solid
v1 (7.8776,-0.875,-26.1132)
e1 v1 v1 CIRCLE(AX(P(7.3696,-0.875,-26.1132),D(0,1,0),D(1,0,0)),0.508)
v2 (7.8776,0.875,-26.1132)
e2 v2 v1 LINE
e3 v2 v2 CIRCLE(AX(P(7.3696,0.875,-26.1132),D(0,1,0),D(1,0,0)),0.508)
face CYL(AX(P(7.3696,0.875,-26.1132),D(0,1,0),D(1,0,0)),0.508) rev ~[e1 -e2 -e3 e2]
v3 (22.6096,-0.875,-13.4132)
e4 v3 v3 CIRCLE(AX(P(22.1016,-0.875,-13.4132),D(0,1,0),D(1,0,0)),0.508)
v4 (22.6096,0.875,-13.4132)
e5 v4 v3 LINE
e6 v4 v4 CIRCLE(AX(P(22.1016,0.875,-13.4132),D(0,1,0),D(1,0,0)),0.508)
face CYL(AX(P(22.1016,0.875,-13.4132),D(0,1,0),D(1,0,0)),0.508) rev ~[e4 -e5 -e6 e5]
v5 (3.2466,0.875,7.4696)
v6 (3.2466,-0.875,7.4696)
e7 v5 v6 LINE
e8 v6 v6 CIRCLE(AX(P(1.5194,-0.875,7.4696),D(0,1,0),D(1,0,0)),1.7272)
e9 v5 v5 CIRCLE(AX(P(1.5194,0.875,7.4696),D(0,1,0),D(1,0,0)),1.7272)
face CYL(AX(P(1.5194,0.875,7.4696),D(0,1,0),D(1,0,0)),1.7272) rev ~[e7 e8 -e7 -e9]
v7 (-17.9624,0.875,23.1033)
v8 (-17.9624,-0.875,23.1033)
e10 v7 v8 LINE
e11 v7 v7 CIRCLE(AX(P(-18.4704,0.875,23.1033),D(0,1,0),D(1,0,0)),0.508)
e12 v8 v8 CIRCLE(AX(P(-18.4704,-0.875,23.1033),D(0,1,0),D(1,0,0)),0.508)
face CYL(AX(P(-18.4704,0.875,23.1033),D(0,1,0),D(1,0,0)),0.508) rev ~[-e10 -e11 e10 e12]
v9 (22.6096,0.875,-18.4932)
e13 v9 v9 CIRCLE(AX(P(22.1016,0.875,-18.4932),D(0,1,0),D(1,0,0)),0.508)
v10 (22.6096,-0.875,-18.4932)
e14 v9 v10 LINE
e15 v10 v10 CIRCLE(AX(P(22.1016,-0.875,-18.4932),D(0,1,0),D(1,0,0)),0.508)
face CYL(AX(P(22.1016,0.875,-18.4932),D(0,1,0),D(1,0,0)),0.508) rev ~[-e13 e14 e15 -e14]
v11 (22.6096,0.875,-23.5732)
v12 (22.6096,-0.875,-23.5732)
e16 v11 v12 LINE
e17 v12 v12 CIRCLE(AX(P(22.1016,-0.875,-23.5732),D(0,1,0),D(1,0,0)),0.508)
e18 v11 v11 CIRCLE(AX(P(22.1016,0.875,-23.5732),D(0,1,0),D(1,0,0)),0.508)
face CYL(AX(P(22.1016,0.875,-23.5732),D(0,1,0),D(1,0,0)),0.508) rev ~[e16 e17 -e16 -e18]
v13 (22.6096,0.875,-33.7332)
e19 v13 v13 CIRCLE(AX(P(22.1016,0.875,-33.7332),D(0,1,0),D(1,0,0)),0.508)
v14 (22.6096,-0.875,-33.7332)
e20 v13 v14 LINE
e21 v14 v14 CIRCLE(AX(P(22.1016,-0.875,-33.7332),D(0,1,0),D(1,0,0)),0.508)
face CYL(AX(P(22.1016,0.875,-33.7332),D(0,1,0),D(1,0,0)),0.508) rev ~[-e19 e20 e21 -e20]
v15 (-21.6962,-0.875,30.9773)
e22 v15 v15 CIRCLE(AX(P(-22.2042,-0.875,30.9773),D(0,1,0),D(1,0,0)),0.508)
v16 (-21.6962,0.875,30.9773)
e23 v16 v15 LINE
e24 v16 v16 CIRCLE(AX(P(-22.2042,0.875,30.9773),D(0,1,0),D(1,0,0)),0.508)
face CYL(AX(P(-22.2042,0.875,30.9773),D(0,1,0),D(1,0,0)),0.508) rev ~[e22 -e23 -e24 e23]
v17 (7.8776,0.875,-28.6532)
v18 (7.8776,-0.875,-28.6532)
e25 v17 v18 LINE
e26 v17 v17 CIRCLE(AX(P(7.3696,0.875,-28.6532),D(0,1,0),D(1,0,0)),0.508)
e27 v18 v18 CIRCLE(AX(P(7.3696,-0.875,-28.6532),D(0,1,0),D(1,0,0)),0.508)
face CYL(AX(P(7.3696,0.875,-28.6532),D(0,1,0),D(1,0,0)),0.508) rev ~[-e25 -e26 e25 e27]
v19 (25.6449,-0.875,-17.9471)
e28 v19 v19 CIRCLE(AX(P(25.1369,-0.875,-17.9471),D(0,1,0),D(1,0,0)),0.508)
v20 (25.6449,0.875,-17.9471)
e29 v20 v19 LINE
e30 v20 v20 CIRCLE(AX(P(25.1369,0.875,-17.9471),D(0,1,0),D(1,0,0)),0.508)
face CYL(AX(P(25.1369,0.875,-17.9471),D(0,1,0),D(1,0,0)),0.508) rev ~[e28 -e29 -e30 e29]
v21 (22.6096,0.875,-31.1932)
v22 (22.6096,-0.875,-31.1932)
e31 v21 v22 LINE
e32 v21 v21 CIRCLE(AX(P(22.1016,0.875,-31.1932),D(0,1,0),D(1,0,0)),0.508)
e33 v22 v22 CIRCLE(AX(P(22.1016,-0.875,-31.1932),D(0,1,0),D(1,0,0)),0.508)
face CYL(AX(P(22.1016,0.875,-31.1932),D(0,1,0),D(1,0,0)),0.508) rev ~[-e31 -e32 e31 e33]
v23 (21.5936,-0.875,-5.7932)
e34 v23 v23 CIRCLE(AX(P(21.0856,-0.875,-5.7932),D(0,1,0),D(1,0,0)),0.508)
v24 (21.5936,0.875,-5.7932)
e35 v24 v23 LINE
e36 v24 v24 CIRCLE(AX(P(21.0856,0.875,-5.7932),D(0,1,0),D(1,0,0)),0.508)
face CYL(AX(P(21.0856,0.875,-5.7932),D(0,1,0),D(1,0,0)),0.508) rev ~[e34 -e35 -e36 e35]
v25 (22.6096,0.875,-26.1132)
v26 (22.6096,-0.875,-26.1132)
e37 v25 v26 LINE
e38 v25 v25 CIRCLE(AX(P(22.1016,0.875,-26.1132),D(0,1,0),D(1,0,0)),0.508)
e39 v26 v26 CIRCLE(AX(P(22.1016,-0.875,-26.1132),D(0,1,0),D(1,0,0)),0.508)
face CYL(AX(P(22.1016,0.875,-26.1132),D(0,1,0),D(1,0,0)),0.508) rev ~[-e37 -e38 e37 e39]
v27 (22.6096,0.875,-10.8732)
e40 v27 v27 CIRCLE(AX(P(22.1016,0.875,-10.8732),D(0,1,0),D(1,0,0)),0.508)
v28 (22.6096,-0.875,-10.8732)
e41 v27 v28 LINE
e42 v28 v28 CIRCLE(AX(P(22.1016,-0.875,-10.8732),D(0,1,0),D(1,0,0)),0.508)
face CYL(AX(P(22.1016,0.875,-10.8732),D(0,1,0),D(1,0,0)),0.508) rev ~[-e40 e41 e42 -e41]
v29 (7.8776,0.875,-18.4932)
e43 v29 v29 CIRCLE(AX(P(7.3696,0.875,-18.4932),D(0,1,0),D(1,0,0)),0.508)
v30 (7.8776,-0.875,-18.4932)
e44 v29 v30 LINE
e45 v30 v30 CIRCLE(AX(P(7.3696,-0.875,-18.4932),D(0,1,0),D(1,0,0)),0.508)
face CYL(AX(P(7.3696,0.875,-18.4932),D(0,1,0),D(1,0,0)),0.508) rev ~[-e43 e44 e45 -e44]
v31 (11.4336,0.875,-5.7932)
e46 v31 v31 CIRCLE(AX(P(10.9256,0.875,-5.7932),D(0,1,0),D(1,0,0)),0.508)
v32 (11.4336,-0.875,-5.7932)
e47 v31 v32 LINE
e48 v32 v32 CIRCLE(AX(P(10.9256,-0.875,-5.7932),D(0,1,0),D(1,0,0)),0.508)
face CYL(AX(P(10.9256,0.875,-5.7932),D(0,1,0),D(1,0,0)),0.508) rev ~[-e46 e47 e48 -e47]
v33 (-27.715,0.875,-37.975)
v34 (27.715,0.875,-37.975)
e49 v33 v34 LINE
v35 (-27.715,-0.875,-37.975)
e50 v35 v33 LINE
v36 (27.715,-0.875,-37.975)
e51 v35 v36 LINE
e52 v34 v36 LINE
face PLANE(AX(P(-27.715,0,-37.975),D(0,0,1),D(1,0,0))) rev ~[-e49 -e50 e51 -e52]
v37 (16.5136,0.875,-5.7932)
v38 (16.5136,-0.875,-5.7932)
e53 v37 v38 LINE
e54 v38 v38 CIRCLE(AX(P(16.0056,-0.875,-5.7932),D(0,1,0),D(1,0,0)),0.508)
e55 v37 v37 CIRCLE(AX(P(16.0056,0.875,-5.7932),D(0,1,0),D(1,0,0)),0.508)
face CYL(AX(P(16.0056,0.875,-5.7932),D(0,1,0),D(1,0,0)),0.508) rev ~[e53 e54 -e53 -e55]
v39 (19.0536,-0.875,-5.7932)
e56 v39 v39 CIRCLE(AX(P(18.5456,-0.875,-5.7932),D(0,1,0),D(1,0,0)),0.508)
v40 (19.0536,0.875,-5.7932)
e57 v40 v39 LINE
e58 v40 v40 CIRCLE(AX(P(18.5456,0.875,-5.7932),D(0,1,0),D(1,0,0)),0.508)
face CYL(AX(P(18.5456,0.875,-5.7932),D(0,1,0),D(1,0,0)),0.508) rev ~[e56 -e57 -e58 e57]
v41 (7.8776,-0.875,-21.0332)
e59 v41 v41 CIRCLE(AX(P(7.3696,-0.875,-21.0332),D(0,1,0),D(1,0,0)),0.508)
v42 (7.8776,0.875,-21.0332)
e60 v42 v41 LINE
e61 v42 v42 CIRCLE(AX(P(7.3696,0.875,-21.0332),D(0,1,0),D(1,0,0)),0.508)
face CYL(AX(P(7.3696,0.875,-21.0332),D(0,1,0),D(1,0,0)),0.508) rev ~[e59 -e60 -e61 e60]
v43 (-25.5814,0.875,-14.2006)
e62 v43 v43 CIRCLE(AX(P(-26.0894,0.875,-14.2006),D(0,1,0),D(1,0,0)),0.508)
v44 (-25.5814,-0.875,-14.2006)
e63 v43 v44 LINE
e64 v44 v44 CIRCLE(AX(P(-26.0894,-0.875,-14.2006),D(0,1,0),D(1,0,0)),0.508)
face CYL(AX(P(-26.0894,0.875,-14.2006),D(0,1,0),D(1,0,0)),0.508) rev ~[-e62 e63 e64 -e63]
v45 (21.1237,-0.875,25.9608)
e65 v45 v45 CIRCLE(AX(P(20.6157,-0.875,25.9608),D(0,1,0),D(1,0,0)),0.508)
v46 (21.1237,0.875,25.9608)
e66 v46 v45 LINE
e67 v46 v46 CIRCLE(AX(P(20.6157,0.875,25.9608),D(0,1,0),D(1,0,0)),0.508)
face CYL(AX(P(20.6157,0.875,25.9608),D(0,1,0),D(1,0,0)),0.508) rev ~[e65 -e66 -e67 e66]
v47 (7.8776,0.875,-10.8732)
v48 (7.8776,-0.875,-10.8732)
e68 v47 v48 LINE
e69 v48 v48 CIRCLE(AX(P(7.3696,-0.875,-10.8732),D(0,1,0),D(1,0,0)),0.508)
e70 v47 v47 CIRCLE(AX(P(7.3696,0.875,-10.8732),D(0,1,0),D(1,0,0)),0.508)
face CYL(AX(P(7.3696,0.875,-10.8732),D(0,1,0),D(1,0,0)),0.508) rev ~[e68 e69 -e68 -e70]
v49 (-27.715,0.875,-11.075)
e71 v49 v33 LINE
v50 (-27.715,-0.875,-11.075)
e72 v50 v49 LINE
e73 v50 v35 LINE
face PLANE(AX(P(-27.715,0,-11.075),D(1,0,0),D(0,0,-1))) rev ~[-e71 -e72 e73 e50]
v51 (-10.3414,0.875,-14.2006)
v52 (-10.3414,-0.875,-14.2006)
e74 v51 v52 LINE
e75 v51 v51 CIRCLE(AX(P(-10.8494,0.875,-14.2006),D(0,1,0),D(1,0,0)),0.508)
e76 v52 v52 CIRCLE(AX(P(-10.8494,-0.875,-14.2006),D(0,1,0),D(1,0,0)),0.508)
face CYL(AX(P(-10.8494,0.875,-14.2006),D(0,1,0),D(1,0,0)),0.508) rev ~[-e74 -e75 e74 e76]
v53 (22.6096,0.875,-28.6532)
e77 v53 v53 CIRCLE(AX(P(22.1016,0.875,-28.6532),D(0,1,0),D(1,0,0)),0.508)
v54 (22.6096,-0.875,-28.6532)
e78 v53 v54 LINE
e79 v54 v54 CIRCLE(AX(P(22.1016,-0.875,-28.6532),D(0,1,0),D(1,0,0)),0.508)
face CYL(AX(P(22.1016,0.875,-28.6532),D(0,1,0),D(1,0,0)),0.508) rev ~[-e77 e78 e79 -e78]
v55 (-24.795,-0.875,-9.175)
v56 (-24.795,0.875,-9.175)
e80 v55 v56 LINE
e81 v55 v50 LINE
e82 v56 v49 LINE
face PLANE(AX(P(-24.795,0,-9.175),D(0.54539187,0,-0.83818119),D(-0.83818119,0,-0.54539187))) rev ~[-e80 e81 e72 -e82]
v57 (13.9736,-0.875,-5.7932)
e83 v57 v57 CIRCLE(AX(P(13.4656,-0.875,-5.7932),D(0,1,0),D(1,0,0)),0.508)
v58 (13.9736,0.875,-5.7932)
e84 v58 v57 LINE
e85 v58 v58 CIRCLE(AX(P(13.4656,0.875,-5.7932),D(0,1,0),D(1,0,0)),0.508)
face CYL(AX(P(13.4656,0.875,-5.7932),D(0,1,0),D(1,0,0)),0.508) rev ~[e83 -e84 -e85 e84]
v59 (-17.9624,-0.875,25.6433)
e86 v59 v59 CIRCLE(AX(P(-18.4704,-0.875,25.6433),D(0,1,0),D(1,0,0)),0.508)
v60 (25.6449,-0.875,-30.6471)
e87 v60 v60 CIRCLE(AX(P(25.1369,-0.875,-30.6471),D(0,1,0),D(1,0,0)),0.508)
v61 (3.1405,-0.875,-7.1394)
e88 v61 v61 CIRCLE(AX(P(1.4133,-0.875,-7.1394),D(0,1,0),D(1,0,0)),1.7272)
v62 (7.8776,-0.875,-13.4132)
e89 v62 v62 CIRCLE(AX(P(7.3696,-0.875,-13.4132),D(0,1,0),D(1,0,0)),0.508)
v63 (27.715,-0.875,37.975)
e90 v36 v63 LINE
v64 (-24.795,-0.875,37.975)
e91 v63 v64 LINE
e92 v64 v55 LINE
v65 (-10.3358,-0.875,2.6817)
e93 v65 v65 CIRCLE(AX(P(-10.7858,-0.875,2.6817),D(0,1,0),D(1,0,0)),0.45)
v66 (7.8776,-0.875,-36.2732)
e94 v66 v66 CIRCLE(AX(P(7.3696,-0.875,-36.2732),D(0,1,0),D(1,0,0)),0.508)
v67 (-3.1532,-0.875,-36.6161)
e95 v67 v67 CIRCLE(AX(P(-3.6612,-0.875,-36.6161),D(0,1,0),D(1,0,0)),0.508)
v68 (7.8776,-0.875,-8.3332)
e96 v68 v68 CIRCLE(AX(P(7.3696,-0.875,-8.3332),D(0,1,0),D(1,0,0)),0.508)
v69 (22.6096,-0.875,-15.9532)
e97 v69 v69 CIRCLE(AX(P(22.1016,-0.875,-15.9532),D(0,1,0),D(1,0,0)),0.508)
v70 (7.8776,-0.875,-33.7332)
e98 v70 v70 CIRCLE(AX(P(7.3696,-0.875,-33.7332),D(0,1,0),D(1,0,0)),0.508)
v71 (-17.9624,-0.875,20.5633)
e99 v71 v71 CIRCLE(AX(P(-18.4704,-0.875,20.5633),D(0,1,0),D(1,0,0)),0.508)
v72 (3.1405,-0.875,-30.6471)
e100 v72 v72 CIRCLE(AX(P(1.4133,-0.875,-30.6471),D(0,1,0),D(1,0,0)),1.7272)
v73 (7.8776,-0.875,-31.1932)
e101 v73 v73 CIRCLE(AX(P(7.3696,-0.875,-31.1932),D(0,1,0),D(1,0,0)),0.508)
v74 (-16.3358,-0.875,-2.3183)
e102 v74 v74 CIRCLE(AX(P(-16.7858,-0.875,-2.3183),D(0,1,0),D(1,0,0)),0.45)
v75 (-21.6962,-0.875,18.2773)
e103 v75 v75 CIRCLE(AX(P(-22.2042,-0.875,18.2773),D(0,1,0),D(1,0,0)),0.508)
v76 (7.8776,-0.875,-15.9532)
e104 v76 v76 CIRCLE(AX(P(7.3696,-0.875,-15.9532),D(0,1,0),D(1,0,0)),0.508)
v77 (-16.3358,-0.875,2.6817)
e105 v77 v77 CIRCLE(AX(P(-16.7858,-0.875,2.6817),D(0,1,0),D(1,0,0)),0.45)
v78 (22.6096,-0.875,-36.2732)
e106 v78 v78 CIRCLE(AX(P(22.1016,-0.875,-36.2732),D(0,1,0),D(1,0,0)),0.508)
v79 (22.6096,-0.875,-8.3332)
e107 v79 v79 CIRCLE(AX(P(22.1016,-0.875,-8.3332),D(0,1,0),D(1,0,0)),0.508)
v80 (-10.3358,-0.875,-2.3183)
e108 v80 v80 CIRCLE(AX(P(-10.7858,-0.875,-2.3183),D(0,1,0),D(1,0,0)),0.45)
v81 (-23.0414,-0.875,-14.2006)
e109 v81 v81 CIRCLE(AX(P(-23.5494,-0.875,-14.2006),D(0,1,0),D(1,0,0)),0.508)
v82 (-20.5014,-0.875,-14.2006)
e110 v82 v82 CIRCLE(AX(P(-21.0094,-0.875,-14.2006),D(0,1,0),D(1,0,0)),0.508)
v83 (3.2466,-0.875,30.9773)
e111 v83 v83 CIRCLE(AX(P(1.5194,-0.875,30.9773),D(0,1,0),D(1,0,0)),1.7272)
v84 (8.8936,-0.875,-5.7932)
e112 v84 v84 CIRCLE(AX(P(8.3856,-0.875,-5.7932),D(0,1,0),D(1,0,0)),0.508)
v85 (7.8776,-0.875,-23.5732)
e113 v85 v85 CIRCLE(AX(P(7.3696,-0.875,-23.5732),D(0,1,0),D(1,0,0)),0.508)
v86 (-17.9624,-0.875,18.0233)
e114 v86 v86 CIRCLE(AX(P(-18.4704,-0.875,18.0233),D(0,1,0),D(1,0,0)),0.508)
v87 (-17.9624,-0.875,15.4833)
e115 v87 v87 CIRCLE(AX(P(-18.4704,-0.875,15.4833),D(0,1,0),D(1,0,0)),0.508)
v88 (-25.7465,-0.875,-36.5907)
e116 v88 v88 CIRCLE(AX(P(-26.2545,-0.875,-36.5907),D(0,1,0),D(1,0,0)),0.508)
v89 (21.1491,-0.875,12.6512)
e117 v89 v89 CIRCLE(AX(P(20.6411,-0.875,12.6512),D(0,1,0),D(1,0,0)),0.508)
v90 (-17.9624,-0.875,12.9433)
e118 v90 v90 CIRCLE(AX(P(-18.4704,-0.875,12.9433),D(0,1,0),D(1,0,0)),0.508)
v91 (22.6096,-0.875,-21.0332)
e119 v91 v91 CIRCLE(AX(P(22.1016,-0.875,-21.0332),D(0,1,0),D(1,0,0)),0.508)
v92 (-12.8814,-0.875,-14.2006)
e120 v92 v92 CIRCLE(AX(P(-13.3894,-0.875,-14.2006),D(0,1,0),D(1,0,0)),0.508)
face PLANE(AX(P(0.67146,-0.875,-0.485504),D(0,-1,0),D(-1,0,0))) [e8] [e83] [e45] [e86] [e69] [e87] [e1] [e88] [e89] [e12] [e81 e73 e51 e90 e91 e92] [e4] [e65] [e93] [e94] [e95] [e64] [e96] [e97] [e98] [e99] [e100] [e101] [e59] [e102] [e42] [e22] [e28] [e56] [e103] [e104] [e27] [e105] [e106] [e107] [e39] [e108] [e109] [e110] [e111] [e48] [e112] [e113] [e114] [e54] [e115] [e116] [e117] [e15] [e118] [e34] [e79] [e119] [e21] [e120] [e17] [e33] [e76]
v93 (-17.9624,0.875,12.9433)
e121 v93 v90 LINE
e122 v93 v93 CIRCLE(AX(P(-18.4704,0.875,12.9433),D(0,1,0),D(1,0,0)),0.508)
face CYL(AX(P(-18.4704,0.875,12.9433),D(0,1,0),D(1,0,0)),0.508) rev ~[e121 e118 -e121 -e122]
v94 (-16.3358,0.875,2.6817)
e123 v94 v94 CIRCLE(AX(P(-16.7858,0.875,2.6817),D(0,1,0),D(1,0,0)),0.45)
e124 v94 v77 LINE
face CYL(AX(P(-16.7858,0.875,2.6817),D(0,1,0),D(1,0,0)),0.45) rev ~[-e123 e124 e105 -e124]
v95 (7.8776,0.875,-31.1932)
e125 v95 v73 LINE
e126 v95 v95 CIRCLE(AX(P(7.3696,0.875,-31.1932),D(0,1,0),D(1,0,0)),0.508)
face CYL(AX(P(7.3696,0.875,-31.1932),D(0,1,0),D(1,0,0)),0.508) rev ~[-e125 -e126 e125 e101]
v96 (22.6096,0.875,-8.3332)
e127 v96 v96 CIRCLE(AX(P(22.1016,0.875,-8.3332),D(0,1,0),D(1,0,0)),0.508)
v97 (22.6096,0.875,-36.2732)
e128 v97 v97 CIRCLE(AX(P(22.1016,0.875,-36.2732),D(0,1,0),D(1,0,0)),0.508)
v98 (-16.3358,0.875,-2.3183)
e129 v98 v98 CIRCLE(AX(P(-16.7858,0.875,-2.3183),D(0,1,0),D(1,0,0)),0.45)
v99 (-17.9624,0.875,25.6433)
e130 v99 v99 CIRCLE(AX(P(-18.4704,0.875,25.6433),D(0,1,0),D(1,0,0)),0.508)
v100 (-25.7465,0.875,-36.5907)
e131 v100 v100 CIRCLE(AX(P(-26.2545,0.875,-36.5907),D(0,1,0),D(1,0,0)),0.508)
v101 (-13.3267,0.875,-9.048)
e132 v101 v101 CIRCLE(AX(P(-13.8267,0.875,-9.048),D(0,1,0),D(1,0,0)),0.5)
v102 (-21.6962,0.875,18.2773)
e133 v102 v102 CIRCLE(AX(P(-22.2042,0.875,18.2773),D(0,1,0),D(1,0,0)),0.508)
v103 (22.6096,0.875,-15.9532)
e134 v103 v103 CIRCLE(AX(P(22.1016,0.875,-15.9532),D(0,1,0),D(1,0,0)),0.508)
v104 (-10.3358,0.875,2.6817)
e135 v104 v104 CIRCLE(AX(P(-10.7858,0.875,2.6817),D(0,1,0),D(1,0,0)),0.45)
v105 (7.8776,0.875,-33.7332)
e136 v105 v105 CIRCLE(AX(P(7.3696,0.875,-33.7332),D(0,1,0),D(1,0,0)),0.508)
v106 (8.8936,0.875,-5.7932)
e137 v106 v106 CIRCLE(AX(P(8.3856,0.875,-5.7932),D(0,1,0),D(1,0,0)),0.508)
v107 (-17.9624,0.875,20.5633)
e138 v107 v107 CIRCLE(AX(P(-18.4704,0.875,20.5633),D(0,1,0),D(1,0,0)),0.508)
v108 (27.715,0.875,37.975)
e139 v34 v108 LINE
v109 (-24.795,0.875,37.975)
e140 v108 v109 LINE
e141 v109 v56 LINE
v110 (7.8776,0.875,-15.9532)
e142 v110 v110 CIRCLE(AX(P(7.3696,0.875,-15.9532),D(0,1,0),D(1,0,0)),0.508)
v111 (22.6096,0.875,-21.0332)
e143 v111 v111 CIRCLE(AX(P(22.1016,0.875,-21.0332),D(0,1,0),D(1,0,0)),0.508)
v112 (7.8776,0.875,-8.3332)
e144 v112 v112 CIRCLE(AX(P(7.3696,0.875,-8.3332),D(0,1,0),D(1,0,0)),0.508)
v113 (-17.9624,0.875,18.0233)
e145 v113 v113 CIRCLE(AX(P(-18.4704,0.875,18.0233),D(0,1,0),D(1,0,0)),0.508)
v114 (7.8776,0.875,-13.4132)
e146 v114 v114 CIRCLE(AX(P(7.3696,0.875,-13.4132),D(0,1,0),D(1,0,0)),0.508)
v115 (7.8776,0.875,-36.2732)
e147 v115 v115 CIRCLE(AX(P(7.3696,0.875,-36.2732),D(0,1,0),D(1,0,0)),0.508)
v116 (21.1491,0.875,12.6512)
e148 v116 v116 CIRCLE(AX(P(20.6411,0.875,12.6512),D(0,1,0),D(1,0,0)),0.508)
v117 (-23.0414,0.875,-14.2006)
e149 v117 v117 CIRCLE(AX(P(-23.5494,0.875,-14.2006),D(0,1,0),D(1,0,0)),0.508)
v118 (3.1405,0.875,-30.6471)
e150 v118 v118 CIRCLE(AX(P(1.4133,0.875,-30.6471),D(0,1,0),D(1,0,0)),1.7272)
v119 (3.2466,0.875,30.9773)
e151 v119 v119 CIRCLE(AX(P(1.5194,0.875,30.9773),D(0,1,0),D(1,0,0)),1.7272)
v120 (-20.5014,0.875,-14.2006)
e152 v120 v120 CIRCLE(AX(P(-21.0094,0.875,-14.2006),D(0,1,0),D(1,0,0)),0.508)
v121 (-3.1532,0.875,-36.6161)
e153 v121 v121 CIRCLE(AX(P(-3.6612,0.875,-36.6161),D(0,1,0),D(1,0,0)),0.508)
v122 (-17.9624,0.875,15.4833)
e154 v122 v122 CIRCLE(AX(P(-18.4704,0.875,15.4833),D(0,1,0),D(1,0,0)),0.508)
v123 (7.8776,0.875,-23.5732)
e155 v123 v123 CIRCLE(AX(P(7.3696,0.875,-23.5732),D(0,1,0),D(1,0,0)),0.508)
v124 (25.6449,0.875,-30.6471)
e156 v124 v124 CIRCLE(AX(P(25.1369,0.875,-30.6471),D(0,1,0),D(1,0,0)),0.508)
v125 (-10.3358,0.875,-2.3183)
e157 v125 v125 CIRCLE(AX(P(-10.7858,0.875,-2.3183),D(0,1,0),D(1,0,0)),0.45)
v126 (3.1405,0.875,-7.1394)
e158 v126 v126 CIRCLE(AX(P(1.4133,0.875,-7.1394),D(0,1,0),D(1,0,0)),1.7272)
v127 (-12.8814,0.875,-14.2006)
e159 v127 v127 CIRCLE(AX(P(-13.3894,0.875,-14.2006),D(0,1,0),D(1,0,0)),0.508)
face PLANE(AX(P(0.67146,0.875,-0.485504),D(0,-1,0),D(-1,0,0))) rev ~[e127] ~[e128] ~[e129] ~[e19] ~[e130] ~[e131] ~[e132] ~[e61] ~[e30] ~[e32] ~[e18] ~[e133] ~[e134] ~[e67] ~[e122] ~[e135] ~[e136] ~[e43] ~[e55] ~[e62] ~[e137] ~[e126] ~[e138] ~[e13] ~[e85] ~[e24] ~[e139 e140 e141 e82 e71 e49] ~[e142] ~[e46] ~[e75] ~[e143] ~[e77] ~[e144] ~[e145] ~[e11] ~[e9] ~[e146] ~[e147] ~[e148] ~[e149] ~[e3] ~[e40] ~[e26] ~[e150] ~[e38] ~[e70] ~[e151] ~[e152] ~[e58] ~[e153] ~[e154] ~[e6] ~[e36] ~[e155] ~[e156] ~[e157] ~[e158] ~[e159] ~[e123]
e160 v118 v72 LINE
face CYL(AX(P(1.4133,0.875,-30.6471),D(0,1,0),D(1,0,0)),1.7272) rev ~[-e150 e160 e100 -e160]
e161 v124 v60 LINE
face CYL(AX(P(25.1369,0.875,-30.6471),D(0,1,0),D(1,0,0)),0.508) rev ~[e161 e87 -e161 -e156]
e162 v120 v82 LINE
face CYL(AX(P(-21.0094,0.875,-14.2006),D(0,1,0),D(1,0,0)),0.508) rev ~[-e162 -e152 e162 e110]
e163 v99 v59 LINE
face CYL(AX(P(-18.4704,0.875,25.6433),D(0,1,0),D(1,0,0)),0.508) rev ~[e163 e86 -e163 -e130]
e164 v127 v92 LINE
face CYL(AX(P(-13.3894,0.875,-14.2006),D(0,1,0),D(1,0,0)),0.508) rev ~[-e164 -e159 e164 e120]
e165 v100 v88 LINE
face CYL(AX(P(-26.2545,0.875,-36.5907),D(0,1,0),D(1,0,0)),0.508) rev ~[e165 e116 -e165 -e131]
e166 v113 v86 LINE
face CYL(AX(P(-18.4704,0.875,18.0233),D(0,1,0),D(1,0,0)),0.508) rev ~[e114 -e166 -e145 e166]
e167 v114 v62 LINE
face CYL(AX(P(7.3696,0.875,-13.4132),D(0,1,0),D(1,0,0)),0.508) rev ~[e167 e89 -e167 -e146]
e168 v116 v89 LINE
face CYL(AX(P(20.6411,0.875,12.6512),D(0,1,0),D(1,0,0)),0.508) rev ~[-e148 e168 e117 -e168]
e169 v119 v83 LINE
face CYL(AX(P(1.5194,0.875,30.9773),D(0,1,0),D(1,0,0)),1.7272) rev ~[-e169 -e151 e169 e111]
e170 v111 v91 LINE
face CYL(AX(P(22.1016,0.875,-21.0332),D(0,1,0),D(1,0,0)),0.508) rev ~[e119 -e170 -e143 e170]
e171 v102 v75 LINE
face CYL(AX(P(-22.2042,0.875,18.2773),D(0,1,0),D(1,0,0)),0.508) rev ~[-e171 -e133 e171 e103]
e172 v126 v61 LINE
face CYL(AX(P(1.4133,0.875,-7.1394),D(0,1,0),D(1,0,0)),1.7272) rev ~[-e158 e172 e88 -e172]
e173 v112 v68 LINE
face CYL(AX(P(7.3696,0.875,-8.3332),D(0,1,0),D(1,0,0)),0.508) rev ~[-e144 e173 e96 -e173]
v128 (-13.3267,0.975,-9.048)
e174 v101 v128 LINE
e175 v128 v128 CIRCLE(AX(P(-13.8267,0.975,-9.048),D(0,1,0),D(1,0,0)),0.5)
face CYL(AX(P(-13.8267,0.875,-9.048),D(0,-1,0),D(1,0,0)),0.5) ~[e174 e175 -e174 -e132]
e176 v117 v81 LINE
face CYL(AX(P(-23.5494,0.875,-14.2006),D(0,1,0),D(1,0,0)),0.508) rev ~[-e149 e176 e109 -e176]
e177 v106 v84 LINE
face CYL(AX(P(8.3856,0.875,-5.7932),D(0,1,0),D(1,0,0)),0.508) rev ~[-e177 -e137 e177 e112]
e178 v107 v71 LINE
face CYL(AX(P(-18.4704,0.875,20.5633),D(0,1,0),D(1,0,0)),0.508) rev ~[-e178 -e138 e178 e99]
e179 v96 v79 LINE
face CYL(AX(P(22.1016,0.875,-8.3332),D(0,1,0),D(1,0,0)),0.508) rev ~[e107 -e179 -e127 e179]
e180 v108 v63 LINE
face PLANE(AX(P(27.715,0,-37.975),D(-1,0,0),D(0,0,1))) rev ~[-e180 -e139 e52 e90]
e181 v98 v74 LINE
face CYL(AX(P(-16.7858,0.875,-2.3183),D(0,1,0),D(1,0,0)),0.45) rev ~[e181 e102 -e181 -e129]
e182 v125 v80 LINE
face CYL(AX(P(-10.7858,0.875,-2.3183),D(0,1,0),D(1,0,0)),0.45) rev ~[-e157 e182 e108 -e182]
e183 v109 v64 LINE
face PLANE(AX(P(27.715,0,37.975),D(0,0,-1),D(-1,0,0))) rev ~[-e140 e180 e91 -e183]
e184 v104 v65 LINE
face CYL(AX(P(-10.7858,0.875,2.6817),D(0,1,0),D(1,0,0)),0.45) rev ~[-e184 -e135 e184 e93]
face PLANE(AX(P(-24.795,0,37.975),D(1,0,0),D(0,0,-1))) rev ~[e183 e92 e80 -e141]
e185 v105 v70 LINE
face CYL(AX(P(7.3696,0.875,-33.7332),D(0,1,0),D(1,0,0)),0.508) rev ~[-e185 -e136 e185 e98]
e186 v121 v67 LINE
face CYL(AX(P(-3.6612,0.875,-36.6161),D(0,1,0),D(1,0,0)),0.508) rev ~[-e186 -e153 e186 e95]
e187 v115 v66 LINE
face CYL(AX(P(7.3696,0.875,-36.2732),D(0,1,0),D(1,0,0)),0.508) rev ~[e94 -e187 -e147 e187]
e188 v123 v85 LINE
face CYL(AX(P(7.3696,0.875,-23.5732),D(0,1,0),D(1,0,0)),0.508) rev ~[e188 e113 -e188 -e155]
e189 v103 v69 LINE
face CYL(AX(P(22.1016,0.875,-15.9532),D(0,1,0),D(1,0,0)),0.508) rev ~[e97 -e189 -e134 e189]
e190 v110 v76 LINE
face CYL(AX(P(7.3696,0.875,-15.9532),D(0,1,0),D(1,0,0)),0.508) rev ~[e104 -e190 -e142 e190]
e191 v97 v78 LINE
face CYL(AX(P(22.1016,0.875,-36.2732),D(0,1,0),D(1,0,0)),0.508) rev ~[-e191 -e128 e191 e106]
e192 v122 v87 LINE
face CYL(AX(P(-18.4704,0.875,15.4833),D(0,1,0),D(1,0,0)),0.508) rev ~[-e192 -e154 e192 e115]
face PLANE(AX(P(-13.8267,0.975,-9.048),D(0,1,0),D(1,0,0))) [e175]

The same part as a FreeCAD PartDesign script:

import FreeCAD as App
import Part
import Sketcher
Q = App.Units.Quantity

doc = App.newDocument("Part")
params = doc.addObject("Spreadsheet::Sheet", "Params")
for row, (alias, value) in enumerate([
    ("sketch1_height", "26.9 mm"),
    ("sketch1_width", "55.43 mm"),
    ("sketch1_width2", "52.51 mm"),
    ("sketch1_height2", "47.15 mm"),
    ("sketch1_height3", "75.95 mm"),
    ("pad1_length", "1.75 mm"),
    ("sketch7_diameter", "0.9 mm"),
    ("sketch8_diameter", "1 mm"),
    ("pad2_length", "0.1 mm"),
], start=1):
    params.set(f"A{row}", alias)
    params.set(f"B{row}", "=" + value)
    params.setAlias(f"B{row}", alias)

body = doc.addObject("PartDesign::Body", "Body")

# Sketch on XZ plane
sketch1 = doc.addObject("Sketcher::SketchObject", "Sketch")
body.addObject(sketch1)
sketch1.AttachmentSupport = (doc.XZ_Plane, [""])
sketch1.MapMode = "FlatFace"
sketch1.addGeometry([
    Part.LineSegment(App.Vector(27.7, -38, 0), App.Vector(-27.7, -38, 0)),  # 0
    Part.LineSegment(App.Vector(-27.7, -38, 0), App.Vector(-27.7, -11.1, 0)),  # 1
    Part.LineSegment(App.Vector(-27.7, -11.1, 0), App.Vector(-24.8, -9.2, 0)),  # 2
    Part.LineSegment(App.Vector(-24.8, -9.2, 0), App.Vector(-24.8, 38, 0)),  # 3
    Part.LineSegment(App.Vector(-24.8, 38, 0), App.Vector(27.7, 38, 0)),  # 4
    Part.LineSegment(App.Vector(27.7, 38, 0), App.Vector(27.7, -38, 0)),  # 5
], False)
sketch1.addConstraint([
    Sketcher.Constraint("Coincident", 0, 2, 1, 1),
    Sketcher.Constraint("Coincident", 1, 2, 2, 1),
    Sketcher.Constraint("Coincident", 2, 2, 3, 1),
    Sketcher.Constraint("Coincident", 3, 2, 4, 1),
    Sketcher.Constraint("Coincident", 4, 2, 5, 1),
    Sketcher.Constraint("Coincident", 5, 2, 0, 1),
    Sketcher.Constraint("Horizontal", 0),
    Sketcher.Constraint("Vertical", 1),
    Sketcher.Constraint("Vertical", 3),
    Sketcher.Constraint("Horizontal", 4),
    Sketcher.Constraint("Vertical", 5),
    Sketcher.Constraint("Symmetric", 0, 2, 4, 2, -1, 1),
    Sketcher.Constraint("DistanceY", 1, 1, 1, 2, Q("26.9 mm")),
    Sketcher.Constraint("DistanceX", 0, 2, 0, 1, Q("55.43 mm")),
    Sketcher.Constraint("DistanceX", 4, 1, 4, 2, Q("52.51 mm")),
    Sketcher.Constraint("DistanceY", 3, 1, 3, 2, Q("47.15 mm")),
    Sketcher.Constraint("DistanceY", 5, 2, 5, 1, Q("75.95 mm")),
])
sketch1.setExpression("Constraints[12]", "Params.sketch1_height")
sketch1.setExpression("Constraints[13]", "Params.sketch1_width")
sketch1.setExpression("Constraints[14]", "Params.sketch1_width2")
sketch1.setExpression("Constraints[15]", "Params.sketch1_height2")
sketch1.setExpression("Constraints[16]", "Params.sketch1_height3")
pad1 = doc.addObject("PartDesign::Pad", "Pad")
body.addObject(pad1)
pad1.Profile = sketch1
pad1.setExpression("Length", "Params.pad1_length")
pad1.Midplane = True

# Sketch on XZ plane
sketch2 = doc.addObject("Sketcher::SketchObject", "Sketch001")
body.addObject(sketch2)
sketch2.AttachmentSupport = (doc.XZ_Plane, [""])
sketch2.MapMode = "FlatFace"
sketch2.AttachmentOffset = App.Placement(App.Vector(0, 0, -0.875), App.Rotation())
sketch2.addGeometry([
    Part.Circle(App.Vector(1.5, 31, 0), App.Vector(0, 0, 1), 1.7),  # 0
    Part.Circle(App.Vector(1.5, 7.5, 0), App.Vector(0, 0, 1), 1.7),  # 1
    Part.Circle(App.Vector(1.4, -7.1, 0), App.Vector(0, 0, 1), 1.7),  # 2
    Part.Circle(App.Vector(1.4, -30.6, 0), App.Vector(0, 0, 1), 1.7),  # 3
    Part.Circle(App.Vector(-22.2, 31, 0), App.Vector(0, 0, 1), 0.5),  # 4
    Part.Circle(App.Vector(-22.2, 18.3, 0), App.Vector(0, 0, 1), 0.5),  # 5
    Part.Circle(App.Vector(25.1, -17.9, 0), App.Vector(0, 0, 1), 0.5),  # 6
    Part.Circle(App.Vector(25.1, -30.6, 0), App.Vector(0, 0, 1), 0.5),  # 7
], False)
sketch2.addConstraint([
    Sketcher.Constraint("Equal", 0, 1),
    Sketcher.Constraint("Equal", 1, 2),
    Sketcher.Constraint("Equal", 2, 3),
    Sketcher.Constraint("Equal", 4, 5),
    Sketcher.Constraint("Equal", 5, 6),
    Sketcher.Constraint("Equal", 6, 7),
    Sketcher.Constraint("Horizontal", 0, 3, 4, 3),
    Sketcher.Constraint("Horizontal", 3, 3, 7, 3),
    Sketcher.Constraint("Vertical", 0, 3, 1, 3),
    Sketcher.Constraint("Vertical", 2, 3, 3, 3),
    Sketcher.Constraint("Vertical", 4, 3, 5, 3),
    Sketcher.Constraint("Vertical", 6, 3, 7, 3),
    Sketcher.Constraint("Diameter", 4, Q("1.016 mm")),
    Sketcher.Constraint("Diameter", 0, Q("3.4544 mm")),
    Sketcher.Constraint("DistanceY", 5, 3, 4, 3, Q("12.7 mm")),
    Sketcher.Constraint("DistanceY", 3, 3, 6, 3, Q("12.7 mm")),
    Sketcher.Constraint("DistanceY", 2, 3, 1, 3, Q("14.609 mm")),
    Sketcher.Constraint("DistanceX", -1, 1, 0, 3, Q("1.5194 mm")),
    Sketcher.Constraint("DistanceY", -1, 1, 0, 3, Q("30.9773 mm")),
    Sketcher.Constraint("DistanceY", -1, 1, 1, 3, Q("7.4696 mm")),
    Sketcher.Constraint("DistanceX", -1, 1, 2, 3, Q("1.4133 mm")),
    Sketcher.Constraint("DistanceY", 3, 3, -1, 1, Q("30.6471 mm")),
    Sketcher.Constraint("DistanceX", 4, 3, -1, 1, Q("22.2042 mm")),
    Sketcher.Constraint("DistanceX", -1, 1, 6, 3, Q("25.1369 mm")),
])
pocket1 = doc.addObject("PartDesign::Pocket", "Pocket")
body.addObject(pocket1)
pocket1.Profile = sketch2
pocket1.Type = "ThroughAll"
pocket1.Reversed = True

# Sketch on XZ plane
sketch3 = doc.addObject("Sketcher::SketchObject", "Sketch002")
body.addObject(sketch3)
sketch3.AttachmentSupport = (doc.XZ_Plane, [""])
sketch3.MapMode = "FlatFace"
sketch3.AttachmentOffset = App.Placement(App.Vector(0, 0, -0.875), App.Rotation())
sketch3.addGeometry([
    Part.Circle(App.Vector(-18.5, 12.9, 0), App.Vector(0, 0, 1), 0.5),  # 0
    Part.Circle(App.Vector(-18.5, 15.5, 0), App.Vector(0, 0, 1), 0.5),  # 1
    Part.Circle(App.Vector(-18.5, 18, 0), App.Vector(0, 0, 1), 0.5),  # 2
    Part.Circle(App.Vector(-18.5, 20.6, 0), App.Vector(0, 0, 1), 0.5),  # 3
    Part.Circle(App.Vector(-18.5, 23.1, 0), App.Vector(0, 0, 1), 0.5),  # 4
    Part.Circle(App.Vector(-18.5, 25.6, 0), App.Vector(0, 0, 1), 0.5),  # 5
], False)
sketch3.addConstraint([
    Sketcher.Constraint("Equal", 0, 1),
    Sketcher.Constraint("Equal", 1, 2),
    Sketcher.Constraint("Equal", 2, 3),
    Sketcher.Constraint("Equal", 3, 4),
    Sketcher.Constraint("Equal", 4, 5),
    Sketcher.Constraint("Vertical", 0, 3, 1, 3),
    Sketcher.Constraint("Vertical", 1, 3, 2, 3),
    Sketcher.Constraint("Vertical", 2, 3, 3, 3),
    Sketcher.Constraint("Vertical", 3, 3, 4, 3),
    Sketcher.Constraint("Vertical", 4, 3, 5, 3),
    Sketcher.Constraint("Diameter", 0, Q("1.016 mm")),
    Sketcher.Constraint("DistanceY", 0, 3, 5, 3, Q("12.7 mm")),
    Sketcher.Constraint("DistanceY", 0, 3, 1, 3, Q("2.54 mm")),
    Sketcher.Constraint("DistanceY", 1, 3, 2, 3, Q("2.54 mm")),
    Sketcher.Constraint("DistanceY", 2, 3, 3, 3, Q("2.54 mm")),
    Sketcher.Constraint("DistanceY", 3, 3, 4, 3, Q("2.54 mm")),
    Sketcher.Constraint("DistanceX", 0, 3, -1, 1, Q("18.4704 mm")),
    Sketcher.Constraint("DistanceY", -1, 1, 0, 3, Q("12.9433 mm")),
])
pocket2 = doc.addObject("PartDesign::Pocket", "Pocket001")
body.addObject(pocket2)
pocket2.Profile = sketch3
pocket2.Type = "ThroughAll"
pocket2.Reversed = True

# Sketch on XZ plane
sketch4 = doc.addObject("Sketcher::SketchObject", "Sketch003")
body.addObject(sketch4)
sketch4.AttachmentSupport = (doc.XZ_Plane, [""])
sketch4.MapMode = "FlatFace"
sketch4.AttachmentOffset = App.Placement(App.Vector(0, 0, -0.875), App.Rotation())
sketch4.addGeometry([
    Part.Circle(App.Vector(-26.1, -14.2, 0), App.Vector(0, 0, 1), 0.5),  # 0
    Part.Circle(App.Vector(-23.5, -14.2, 0), App.Vector(0, 0, 1), 0.5),  # 1
    Part.Circle(App.Vector(-21, -14.2, 0), App.Vector(0, 0, 1), 0.5),  # 2
    Part.Circle(App.Vector(-13.4, -14.2, 0), App.Vector(0, 0, 1), 0.5),  # 3
    Part.Circle(App.Vector(-10.8, -14.2, 0), App.Vector(0, 0, 1), 0.5),  # 4
], False)
sketch4.addConstraint([
    Sketcher.Constraint("Equal", 0, 1),
    Sketcher.Constraint("Equal", 1, 2),
    Sketcher.Constraint("Equal", 2, 3),
    Sketcher.Constraint("Equal", 3, 4),
    Sketcher.Constraint("Horizontal", 0, 3, 1, 3),
    Sketcher.Constraint("Horizontal", 1, 3, 2, 3),
    Sketcher.Constraint("Horizontal", 2, 3, 3, 3),
    Sketcher.Constraint("Horizontal", 3, 3, 4, 3),
    Sketcher.Constraint("Diameter", 0, Q("1.016 mm")),
    Sketcher.Constraint("DistanceX", 0, 3, 3, 3, Q("12.7 mm")),
    Sketcher.Constraint("DistanceX", 1, 3, 4, 3, Q("12.7 mm")),
    Sketcher.Constraint("DistanceX", 0, 3, 1, 3, Q("2.54 mm")),
    Sketcher.Constraint("DistanceX", 1, 3, 2, 3, Q("2.54 mm")),
    Sketcher.Constraint("DistanceX", 0, 3, -1, 1, Q("26.0894 mm")),
    Sketcher.Constraint("DistanceY", 0, 3, -1, 1, Q("14.2006 mm")),
])
pocket3 = doc.addObject("PartDesign::Pocket", "Pocket002")
body.addObject(pocket3)
pocket3.Profile = sketch4
pocket3.Type = "ThroughAll"
pocket3.Reversed = True

# Sketch on XZ plane
sketch5 = doc.addObject("Sketcher::SketchObject", "Sketch004")
body.addObject(sketch5)
sketch5.AttachmentSupport = (doc.XZ_Plane, [""])
sketch5.MapMode = "FlatFace"
sketch5.AttachmentOffset = App.Placement(App.Vector(0, 0, -0.875), App.Rotation())
sketch5.addGeometry([
    Part.Circle(App.Vector(7.4, -36.3, 0), App.Vector(0, 0, 1), 0.5),  # 0
    Part.Circle(App.Vector(7.4, -33.7, 0), App.Vector(0, 0, 1), 0.5),  # 1
    Part.Circle(App.Vector(7.4, -31.2, 0), App.Vector(0, 0, 1), 0.5),  # 2
    Part.Circle(App.Vector(7.4, -28.7, 0), App.Vector(0, 0, 1), 0.5),  # 3
    Part.Circle(App.Vector(7.4, -26.1, 0), App.Vector(0, 0, 1), 0.5),  # 4
    Part.Circle(App.Vector(7.4, -23.6, 0), App.Vector(0, 0, 1), 0.5),  # 5
    Part.Circle(App.Vector(7.4, -21, 0), App.Vector(0, 0, 1), 0.5),  # 6
    Part.Circle(App.Vector(7.4, -18.5, 0), App.Vector(0, 0, 1), 0.5),  # 7
    Part.Circle(App.Vector(7.4, -16, 0), App.Vector(0, 0, 1), 0.5),  # 8
    Part.Circle(App.Vector(7.4, -13.4, 0), App.Vector(0, 0, 1), 0.5),  # 9
    Part.Circle(App.Vector(7.4, -10.9, 0), App.Vector(0, 0, 1), 0.5),  # 10
    Part.Circle(App.Vector(7.4, -8.3, 0), App.Vector(0, 0, 1), 0.5),  # 11
    Part.Circle(App.Vector(8.4, -5.8, 0), App.Vector(0, 0, 1), 0.5),  # 12
    Part.Circle(App.Vector(10.9, -5.8, 0), App.Vector(0, 0, 1), 0.5),  # 13
    Part.Circle(App.Vector(13.5, -5.8, 0), App.Vector(0, 0, 1), 0.5),  # 14
    Part.Circle(App.Vector(16, -5.8, 0), App.Vector(0, 0, 1), 0.5),  # 15
    Part.Circle(App.Vector(18.5, -5.8, 0), App.Vector(0, 0, 1), 0.5),  # 16
    Part.Circle(App.Vector(21.1, -5.8, 0), App.Vector(0, 0, 1), 0.5),  # 17
    Part.Circle(App.Vector(22.1, -8.3, 0), App.Vector(0, 0, 1), 0.5),  # 18
    Part.Circle(App.Vector(22.1, -10.9, 0), App.Vector(0, 0, 1), 0.5),  # 19
    Part.Circle(App.Vector(22.1, -13.4, 0), App.Vector(0, 0, 1), 0.5),  # 20
    Part.Circle(App.Vector(22.1, -16, 0), App.Vector(0, 0, 1), 0.5),  # 21
    Part.Circle(App.Vector(22.1, -18.5, 0), App.Vector(0, 0, 1), 0.5),  # 22
    Part.Circle(App.Vector(22.1, -21, 0), App.Vector(0, 0, 1), 0.5),  # 23
    Part.Circle(App.Vector(22.1, -23.6, 0), App.Vector(0, 0, 1), 0.5),  # 24
    Part.Circle(App.Vector(22.1, -26.1, 0), App.Vector(0, 0, 1), 0.5),  # 25
    Part.Circle(App.Vector(22.1, -28.7, 0), App.Vector(0, 0, 1), 0.5),  # 26
    Part.Circle(App.Vector(22.1, -31.2, 0), App.Vector(0, 0, 1), 0.5),  # 27
    Part.Circle(App.Vector(22.1, -33.7, 0), App.Vector(0, 0, 1), 0.5),  # 28
    Part.Circle(App.Vector(22.1, -36.3, 0), App.Vector(0, 0, 1), 0.5),  # 29
], False)
sketch5.addConstraint([
    Sketcher.Constraint("Equal", 0, 1),
    Sketcher.Constraint("Equal", 1, 2),
    Sketcher.Constraint("Equal", 2, 3),
    Sketcher.Constraint("Equal", 3, 4),
    Sketcher.Constraint("Equal", 4, 5),
    Sketcher.Constraint("Equal", 5, 6),
    Sketcher.Constraint("Equal", 6, 7),
    Sketcher.Constraint("Equal", 7, 8),
    Sketcher.Constraint("Equal", 8, 9),
    Sketcher.Constraint("Equal", 9, 10),
    Sketcher.Constraint("Equal", 10, 11),
    Sketcher.Constraint("Equal", 11, 12),
    Sketcher.Constraint("Equal", 12, 13),
    Sketcher.Constraint("Equal", 13, 14),
    Sketcher.Constraint("Equal", 14, 15),
    Sketcher.Constraint("Equal", 15, 16),
    Sketcher.Constraint("Equal", 16, 17),
    Sketcher.Constraint("Equal", 17, 18),
    Sketcher.Constraint("Equal", 18, 19),
    Sketcher.Constraint("Equal", 19, 20),
    Sketcher.Constraint("Equal", 20, 21),
    Sketcher.Constraint("Equal", 21, 22),
    Sketcher.Constraint("Equal", 22, 23),
    Sketcher.Constraint("Equal", 23, 24),
    Sketcher.Constraint("Equal", 24, 25),
    Sketcher.Constraint("Equal", 25, 26),
    Sketcher.Constraint("Equal", 26, 27),
    Sketcher.Constraint("Equal", 27, 28),
    Sketcher.Constraint("Equal", 28, 29),
    Sketcher.Constraint("Horizontal", 12, 3, 13, 3),
    Sketcher.Constraint("Horizontal", 13, 3, 14, 3),
    Sketcher.Constraint("Horizontal", 14, 3, 15, 3),
    Sketcher.Constraint("Horizontal", 15, 3, 16, 3),
    Sketcher.Constraint("Horizontal", 16, 3, 17, 3),
    Sketcher.Constraint("Horizontal", 11, 3, 18, 3),
    Sketcher.Constraint("Horizontal", 10, 3, 19, 3),
    Sketcher.Constraint("Horizontal", 9, 3, 20, 3),
    Sketcher.Constraint("Horizontal", 8, 3, 21, 3),
    Sketcher.Constraint("Horizontal", 7, 3, 22, 3),
    Sketcher.Constraint("Horizontal", 6, 3, 23, 3),
    Sketcher.Constraint("Horizontal", 5, 3, 24, 3),
    Sketcher.Constraint("Horizontal", 4, 3, 25, 3),
    Sketcher.Constraint("Horizontal", 3, 3, 26, 3),
    Sketcher.Constraint("Horizontal", 2, 3, 27, 3),
    Sketcher.Constraint("Horizontal", 1, 3, 28, 3),
    Sketcher.Constraint("Horizontal", 0, 3, 29, 3),
    Sketcher.Constraint("Vertical", 0, 3, 1, 3),
    Sketcher.Constraint("Vertical", 1, 3, 2, 3),
    Sketcher.Constraint("Vertical", 2, 3, 3, 3),
    Sketcher.Constraint("Vertical", 3, 3, 4, 3),
    Sketcher.Constraint("Vertical", 4, 3, 5, 3),
    Sketcher.Constraint("Vertical", 5, 3, 6, 3),
    Sketcher.Constraint("Vertical", 6, 3, 7, 3),
    Sketcher.Constraint("Vertical", 7, 3, 8, 3),
    Sketcher.Constraint("Vertical", 8, 3, 9, 3),
    Sketcher.Constraint("Vertical", 9, 3, 10, 3),
    Sketcher.Constraint("Vertical", 10, 3, 11, 3),
    Sketcher.Constraint("Vertical", 18, 3, 19, 3),
    Sketcher.Constraint("Vertical", 19, 3, 20, 3),
    Sketcher.Constraint("Vertical", 20, 3, 21, 3),
    Sketcher.Constraint("Vertical", 21, 3, 22, 3),
    Sketcher.Constraint("Vertical", 22, 3, 23, 3),
    Sketcher.Constraint("Vertical", 23, 3, 24, 3),
    Sketcher.Constraint("Vertical", 24, 3, 25, 3),
    Sketcher.Constraint("Vertical", 25, 3, 26, 3),
    Sketcher.Constraint("Vertical", 26, 3, 27, 3),
    Sketcher.Constraint("Vertical", 27, 3, 28, 3),
    Sketcher.Constraint("Vertical", 28, 3, 29, 3),
    Sketcher.Constraint("Diameter", 0, Q("1.016 mm")),
    Sketcher.Constraint("DistanceY", 0, 3, 5, 3, Q("12.7 mm")),
    Sketcher.Constraint("DistanceY", 1, 3, 6, 3, Q("12.7 mm")),
    Sketcher.Constraint("DistanceY", 2, 3, 7, 3, Q("12.7 mm")),
    Sketcher.Constraint("DistanceY", 3, 3, 8, 3, Q("12.7 mm")),
    Sketcher.Constraint("DistanceY", 4, 3, 9, 3, Q("12.7 mm")),
    Sketcher.Constraint("DistanceY", 5, 3, 10, 3, Q("12.7 mm")),
    Sketcher.Constraint("DistanceY", 6, 3, 11, 3, Q("12.7 mm")),
    Sketcher.Constraint("DistanceY", 7, 3, 12, 3, Q("12.7 mm")),
    Sketcher.Constraint("DistanceX", 12, 3, 17, 3, Q("12.7 mm")),
    Sketcher.Constraint("DistanceY", 0, 3, 1, 3, Q("2.54 mm")),
    Sketcher.Constraint("DistanceY", 1, 3, 2, 3, Q("2.54 mm")),
    Sketcher.Constraint("DistanceY", 2, 3, 3, 3, Q("2.54 mm")),
    Sketcher.Constraint("DistanceY", 3, 3, 4, 3, Q("2.54 mm")),
    Sketcher.Constraint("DistanceX", 12, 3, 13, 3, Q("2.54 mm")),
    Sketcher.Constraint("DistanceX", 13, 3, 14, 3, Q("2.54 mm")),
    Sketcher.Constraint("DistanceX", 14, 3, 15, 3, Q("2.54 mm")),
    Sketcher.Constraint("DistanceX", 15, 3, 16, 3, Q("2.54 mm")),
    Sketcher.Constraint("DistanceX", 11, 3, 12, 3, Q("1.016 mm")),
    Sketcher.Constraint("DistanceX", 17, 3, 18, 3, Q("1.016 mm")),
    Sketcher.Constraint("DistanceX", -1, 1, 0, 3, Q("7.3696 mm")),
    Sketcher.Constraint("DistanceY", 0, 3, -1, 1, Q("36.2732 mm")),
])
pocket4 = doc.addObject("PartDesign::Pocket", "Pocket003")
body.addObject(pocket4)
pocket4.Profile = sketch5
pocket4.Type = "ThroughAll"
pocket4.Reversed = True

# Sketch on XZ plane
sketch6 = doc.addObject("Sketcher::SketchObject", "Sketch005")
body.addObject(sketch6)
sketch6.AttachmentSupport = (doc.XZ_Plane, [""])
sketch6.MapMode = "FlatFace"
sketch6.AttachmentOffset = App.Placement(App.Vector(0, 0, -0.875), App.Rotation())
sketch6.addGeometry([
    Part.Circle(App.Vector(20.6, 26, 0), App.Vector(0, 0, 1), 0.5),
    Part.Circle(App.Vector(20.6, 12.7, 0), App.Vector(0, 0, 1), 0.5),
    Part.Circle(App.Vector(-3.7, -36.6, 0), App.Vector(0, 0, 1), 0.5),
    Part.Circle(App.Vector(-26.3, -36.6, 0), App.Vector(0, 0, 1), 0.5),
], False)
sketch6.addConstraint([
    Sketcher.Constraint("Equal", 0, 1),
    Sketcher.Constraint("Equal", 1, 2),
    Sketcher.Constraint("Equal", 2, 3),
    Sketcher.Constraint("Diameter", 0, Q("1.016 mm")),
    Sketcher.Constraint("DistanceX", -1, 1, 0, 3, Q("20.6157 mm")),
    Sketcher.Constraint("DistanceY", -1, 1, 0, 3, Q("25.9608 mm")),
    Sketcher.Constraint("DistanceX", -1, 1, 1, 3, Q("20.6411 mm")),
    Sketcher.Constraint("DistanceY", -1, 1, 1, 3, Q("12.6512 mm")),
    Sketcher.Constraint("DistanceX", 2, 3, -1, 1, Q("3.6612 mm")),
    Sketcher.Constraint("DistanceY", 2, 3, -1, 1, Q("36.6161 mm")),
    Sketcher.Constraint("DistanceX", 3, 3, -1, 1, Q("26.2545 mm")),
    Sketcher.Constraint("DistanceY", 3, 3, -1, 1, Q("36.5907 mm")),
])
pocket5 = doc.addObject("PartDesign::Pocket", "Pocket004")
body.addObject(pocket5)
pocket5.Profile = sketch6
pocket5.Type = "ThroughAll"
pocket5.Reversed = True

# Sketch on XZ plane
sketch7 = doc.addObject("Sketcher::SketchObject", "Sketch006")
body.addObject(sketch7)
sketch7.AttachmentSupport = (doc.XZ_Plane, [""])
sketch7.MapMode = "FlatFace"
sketch7.AttachmentOffset = App.Placement(App.Vector(0, 0, -0.875), App.Rotation())
sketch7.addGeometry([
    Part.Circle(App.Vector(-16.79, -2.32, 0), App.Vector(0, 0, 1), 0.45),
    Part.Circle(App.Vector(-10.79, -2.32, 0), App.Vector(0, 0, 1), 0.45),
    Part.Circle(App.Vector(-16.79, 2.68, 0), App.Vector(0, 0, 1), 0.45),
    Part.Circle(App.Vector(-10.79, 2.68, 0), App.Vector(0, 0, 1), 0.45),
], False)
sketch7.addConstraint([
    Sketcher.Constraint("Equal", 0, 1),
    Sketcher.Constraint("Equal", 1, 2),
    Sketcher.Constraint("Equal", 2, 3),
    Sketcher.Constraint("Horizontal", 0, 3, 1, 3),
    Sketcher.Constraint("Horizontal", 2, 3, 3, 3),
    Sketcher.Constraint("Vertical", 0, 3, 2, 3),
    Sketcher.Constraint("Vertical", 1, 3, 3, 3),
    Sketcher.Constraint("Diameter", 0, Q("0.9 mm")),
    Sketcher.Constraint("DistanceX", 0, 3, 1, 3, Q("6 mm")),
    Sketcher.Constraint("DistanceY", 0, 3, 2, 3, Q("5 mm")),
    Sketcher.Constraint("DistanceX", 0, 3, -1, 1, Q("16.7858 mm")),
    Sketcher.Constraint("DistanceY", 0, 3, -1, 1, Q("2.3183 mm")),
])
sketch7.setExpression("Constraints[7]", "Params.sketch7_diameter")
pocket6 = doc.addObject("PartDesign::Pocket", "Pocket005")
body.addObject(pocket6)
pocket6.Profile = sketch7
pocket6.Type = "ThroughAll"
pocket6.Reversed = True

# Sketch on XZ plane
sketch8 = doc.addObject("Sketcher::SketchObject", "Sketch007")
body.addObject(sketch8)
sketch8.AttachmentSupport = (doc.XZ_Plane, [""])
sketch8.MapMode = "FlatFace"
sketch8.AttachmentOffset = App.Placement(App.Vector(0, 0, -0.875), App.Rotation())
sketch8.addGeometry(Part.Circle(App.Vector(-13.8, -9, 0), App.Vector(0, 0, 1), 0.5), False)
sketch8.addConstraint([
    Sketcher.Constraint("Diameter", 0, Q("1 mm")),
    Sketcher.Constraint("DistanceY", 0, 3, -1, 1, Q("9.048 mm")),
    Sketcher.Constraint("DistanceX", 0, 3, -1, 1, Q("13.8267 mm")),
])
sketch8.setExpression("Constraints[0]", "Params.sketch8_diameter")
pad2 = doc.addObject("PartDesign::Pad", "Pad001")
body.addObject(pad2)
pad2.Profile = sketch8
pad2.setExpression("Length", "Params.pad2_length")
pad2.Reversed = True

doc.recompute()
